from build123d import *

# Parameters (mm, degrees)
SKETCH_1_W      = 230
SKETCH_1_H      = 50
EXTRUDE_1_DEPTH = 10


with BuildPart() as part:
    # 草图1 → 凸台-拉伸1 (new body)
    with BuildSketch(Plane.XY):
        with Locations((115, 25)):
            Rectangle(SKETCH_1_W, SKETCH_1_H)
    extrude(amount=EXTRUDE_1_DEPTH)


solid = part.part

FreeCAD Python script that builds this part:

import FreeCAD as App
import Part
import Sketcher

V = App.Vector
Q = App.Units.Quantity


def add_polygon(sketch, points):
    """Adds a closed chain of lines whose ends are joined by coincident constraints."""
    first, n = sketch.GeometryCount, len(points)
    for a, b in zip(points, points[1:] + points[:1]):
        sketch.addGeometry(Part.LineSegment(App.Vector(*a, 0), App.Vector(*b, 0)), False)
    for i in range(n):
        sketch.addConstraint(Sketcher.Constraint("Coincident", first + i, 2, first + (i + 1) % n, 1))

doc = App.newDocument("Part")
body = doc.addObject("PartDesign::Body", "Body")

# Sketch on XY plane
sketch1 = body.newObject("Sketcher::SketchObject", "Sketch")
sketch1.AttachmentSupport = (doc.getObject("XY_Plane"), [""])
sketch1.MapMode = "FlatFace"
add_polygon(sketch1, [(0, 50), (0, 0), (230, 0), (230, 50)])  # lines 0-3
sketch1.addConstraint([
    Sketcher.Constraint("Vertical", 0),
    Sketcher.Constraint("Horizontal", 1),
    Sketcher.Constraint("Vertical", 2),
    Sketcher.Constraint("Horizontal", 3),
    Sketcher.Constraint("Coincident", 0, 2, -1, 1),
    Sketcher.Constraint("DistanceX", 1, 1, 1, 2, Q("230 mm")),
    Sketcher.Constraint("DistanceY", 0, 2, 0, 1, Q("50 mm")),
])
pad1 = body.newObject("PartDesign::Pad", "Pad")
pad1.Profile = sketch1
pad1.Length = 10

doc.recompute()
